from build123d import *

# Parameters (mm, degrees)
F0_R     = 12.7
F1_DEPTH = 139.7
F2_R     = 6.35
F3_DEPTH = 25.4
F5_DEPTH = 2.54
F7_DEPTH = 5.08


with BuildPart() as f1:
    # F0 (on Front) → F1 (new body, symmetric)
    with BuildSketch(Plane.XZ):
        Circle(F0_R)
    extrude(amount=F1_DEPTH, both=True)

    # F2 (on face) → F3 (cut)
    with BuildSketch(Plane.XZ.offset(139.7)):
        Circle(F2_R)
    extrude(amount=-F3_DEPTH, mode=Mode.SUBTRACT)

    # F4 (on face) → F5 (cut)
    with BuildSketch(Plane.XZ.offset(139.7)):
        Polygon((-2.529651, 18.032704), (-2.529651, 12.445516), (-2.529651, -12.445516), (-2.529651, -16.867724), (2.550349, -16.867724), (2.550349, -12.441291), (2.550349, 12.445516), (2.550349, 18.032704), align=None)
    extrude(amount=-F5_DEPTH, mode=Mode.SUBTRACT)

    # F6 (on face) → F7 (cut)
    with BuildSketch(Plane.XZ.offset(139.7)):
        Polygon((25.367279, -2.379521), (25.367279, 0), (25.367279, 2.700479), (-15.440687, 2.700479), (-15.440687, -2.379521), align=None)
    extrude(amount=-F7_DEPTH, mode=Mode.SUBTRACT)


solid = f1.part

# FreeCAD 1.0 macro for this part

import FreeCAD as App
import Part
import Sketcher
Q = App.Units.Quantity

doc = App.newDocument("Part")
body = doc.addObject("PartDesign::Body", "Body")

# Sketch on XZ plane
sketch1 = body.newObject("Sketcher::SketchObject", "Sketch")
sketch1.AttachmentSupport = (doc.getObject("XZ_Plane"), [""])
sketch1.MapMode = "FlatFace"
sketch1.addGeometry(Part.Circle(App.Vector(0, 0, 0), App.Vector(0, 0, 1), 13), False)
sketch1.addConstraint([
    Sketcher.Constraint("Coincident", 0, 3, -1, 1),
    Sketcher.Constraint("Diameter", 0, Q("1 in")),
])
pad1 = body.newObject("PartDesign::Pad", "Pad")
pad1.Profile = sketch1
pad1.Length = Q("11 in")
pad1.Midplane = True

# Sketch on XZ plane
sketch2 = body.newObject("Sketcher::SketchObject", "Sketch001")
sketch2.AttachmentSupport = (doc.getObject("XZ_Plane"), [""])
sketch2.MapMode = "FlatFace"
sketch2.AttachmentOffset = App.Placement(App.Vector(0, 0, 5.5 * 25.4), App.Rotation())
sketch2.addGeometry(Part.Circle(App.Vector(0, 0, 0), App.Vector(0, 0, 1), 6), False)
sketch2.addConstraint([
    Sketcher.Constraint("Coincident", 0, 3, -1, 1),
    Sketcher.Constraint("Diameter", 0, Q("0.5 in")),
])
pocket1 = body.newObject("PartDesign::Pocket", "Pocket")
pocket1.Profile = sketch2
pocket1.Length = Q("1 in")

# Sketch on XZ plane
sketch3 = body.newObject("Sketcher::SketchObject", "Sketch002")
sketch3.AttachmentSupport = (doc.getObject("XZ_Plane"), [""])
sketch3.MapMode = "FlatFace"
sketch3.AttachmentOffset = App.Placement(App.Vector(0, 0, 5.5 * 25.4), App.Rotation())
sketch3.addGeometry([
    Part.LineSegment(App.Vector(-3, 18, 0), App.Vector(-3, -17, 0)),
    Part.LineSegment(App.Vector(-3, -17, 0), App.Vector(3, -17, 0)),
    Part.LineSegment(App.Vector(3, -17, 0), App.Vector(3, 18, 0)),
    Part.LineSegment(App.Vector(3, 18, 0), App.Vector(-3, 18, 0)),
], False)
sketch3.addConstraint([
    Sketcher.Constraint("Coincident", 0, 2, 1, 1),
    Sketcher.Constraint("Coincident", 1, 2, 2, 1),
    Sketcher.Constraint("Coincident", 2, 2, 3, 1),
    Sketcher.Constraint("Coincident", 3, 2, 0, 1),
    Sketcher.Constraint("Vertical", 0),
    Sketcher.Constraint("Horizontal", 1),
    Sketcher.Constraint("Vertical", 2),
    Sketcher.Constraint("Horizontal", 3),
    Sketcher.Constraint("DistanceX", 1, 1, 1, 2, Q("0.2 in")),
    Sketcher.Constraint("DistanceY", 0, 2, 0, 1, Q("34.900428 mm")),
    Sketcher.Constraint("DistanceX", 0, 2, -1, 1, Q("2.529651 mm")),
    Sketcher.Constraint("DistanceY", 0, 2, -1, 1, Q("16.867724 mm")),
])
pocket2 = body.newObject("PartDesign::Pocket", "Pocket001")
pocket2.Profile = sketch3
pocket2.Length = Q("0.1 in")

# Sketch on XZ plane
sketch4 = body.newObject("Sketcher::SketchObject", "Sketch003")
sketch4.AttachmentSupport = (doc.getObject("XZ_Plane"), [""])
sketch4.MapMode = "FlatFace"
sketch4.AttachmentOffset = App.Placement(App.Vector(0, 0, 5.5 * 25.4), App.Rotation())
sketch4.addGeometry([
    Part.LineSegment(App.Vector(25, -2, 0), App.Vector(25, 3, 0)),
    Part.LineSegment(App.Vector(25, 3, 0), App.Vector(-15, 3, 0)),
    Part.LineSegment(App.Vector(-15, 3, 0), App.Vector(-15, -2, 0)),
    Part.LineSegment(App.Vector(-15, -2, 0), App.Vector(25, -2, 0)),
], False)
sketch4.addConstraint([
    Sketcher.Constraint("Coincident", 0, 2, 1, 1),
    Sketcher.Constraint("Coincident", 1, 2, 2, 1),
    Sketcher.Constraint("Coincident", 2, 2, 3, 1),
    Sketcher.Constraint("Coincident", 3, 2, 0, 1),
    Sketcher.Constraint("Vertical", 0),
    Sketcher.Constraint("Horizontal", 1),
    Sketcher.Constraint("Vertical", 2),
    Sketcher.Constraint("Horizontal", 3),
    Sketcher.Constraint("DistanceY", 0, 1, 0, 2, Q("0.2 in")),
    Sketcher.Constraint("DistanceX", 1, 2, 1, 1, Q("40.807966 mm")),
    Sketcher.Constraint("DistanceX", -1, 1, 0, 2, Q("25.367279 mm")),
    Sketcher.Constraint("DistanceY", -1, 1, 0, 2, Q("2.700479 mm")),
])
pocket3 = body.newObject("PartDesign::Pocket", "Pocket002")
pocket3.Profile = sketch4
pocket3.Length = Q("0.2 in")

doc.recompute()
